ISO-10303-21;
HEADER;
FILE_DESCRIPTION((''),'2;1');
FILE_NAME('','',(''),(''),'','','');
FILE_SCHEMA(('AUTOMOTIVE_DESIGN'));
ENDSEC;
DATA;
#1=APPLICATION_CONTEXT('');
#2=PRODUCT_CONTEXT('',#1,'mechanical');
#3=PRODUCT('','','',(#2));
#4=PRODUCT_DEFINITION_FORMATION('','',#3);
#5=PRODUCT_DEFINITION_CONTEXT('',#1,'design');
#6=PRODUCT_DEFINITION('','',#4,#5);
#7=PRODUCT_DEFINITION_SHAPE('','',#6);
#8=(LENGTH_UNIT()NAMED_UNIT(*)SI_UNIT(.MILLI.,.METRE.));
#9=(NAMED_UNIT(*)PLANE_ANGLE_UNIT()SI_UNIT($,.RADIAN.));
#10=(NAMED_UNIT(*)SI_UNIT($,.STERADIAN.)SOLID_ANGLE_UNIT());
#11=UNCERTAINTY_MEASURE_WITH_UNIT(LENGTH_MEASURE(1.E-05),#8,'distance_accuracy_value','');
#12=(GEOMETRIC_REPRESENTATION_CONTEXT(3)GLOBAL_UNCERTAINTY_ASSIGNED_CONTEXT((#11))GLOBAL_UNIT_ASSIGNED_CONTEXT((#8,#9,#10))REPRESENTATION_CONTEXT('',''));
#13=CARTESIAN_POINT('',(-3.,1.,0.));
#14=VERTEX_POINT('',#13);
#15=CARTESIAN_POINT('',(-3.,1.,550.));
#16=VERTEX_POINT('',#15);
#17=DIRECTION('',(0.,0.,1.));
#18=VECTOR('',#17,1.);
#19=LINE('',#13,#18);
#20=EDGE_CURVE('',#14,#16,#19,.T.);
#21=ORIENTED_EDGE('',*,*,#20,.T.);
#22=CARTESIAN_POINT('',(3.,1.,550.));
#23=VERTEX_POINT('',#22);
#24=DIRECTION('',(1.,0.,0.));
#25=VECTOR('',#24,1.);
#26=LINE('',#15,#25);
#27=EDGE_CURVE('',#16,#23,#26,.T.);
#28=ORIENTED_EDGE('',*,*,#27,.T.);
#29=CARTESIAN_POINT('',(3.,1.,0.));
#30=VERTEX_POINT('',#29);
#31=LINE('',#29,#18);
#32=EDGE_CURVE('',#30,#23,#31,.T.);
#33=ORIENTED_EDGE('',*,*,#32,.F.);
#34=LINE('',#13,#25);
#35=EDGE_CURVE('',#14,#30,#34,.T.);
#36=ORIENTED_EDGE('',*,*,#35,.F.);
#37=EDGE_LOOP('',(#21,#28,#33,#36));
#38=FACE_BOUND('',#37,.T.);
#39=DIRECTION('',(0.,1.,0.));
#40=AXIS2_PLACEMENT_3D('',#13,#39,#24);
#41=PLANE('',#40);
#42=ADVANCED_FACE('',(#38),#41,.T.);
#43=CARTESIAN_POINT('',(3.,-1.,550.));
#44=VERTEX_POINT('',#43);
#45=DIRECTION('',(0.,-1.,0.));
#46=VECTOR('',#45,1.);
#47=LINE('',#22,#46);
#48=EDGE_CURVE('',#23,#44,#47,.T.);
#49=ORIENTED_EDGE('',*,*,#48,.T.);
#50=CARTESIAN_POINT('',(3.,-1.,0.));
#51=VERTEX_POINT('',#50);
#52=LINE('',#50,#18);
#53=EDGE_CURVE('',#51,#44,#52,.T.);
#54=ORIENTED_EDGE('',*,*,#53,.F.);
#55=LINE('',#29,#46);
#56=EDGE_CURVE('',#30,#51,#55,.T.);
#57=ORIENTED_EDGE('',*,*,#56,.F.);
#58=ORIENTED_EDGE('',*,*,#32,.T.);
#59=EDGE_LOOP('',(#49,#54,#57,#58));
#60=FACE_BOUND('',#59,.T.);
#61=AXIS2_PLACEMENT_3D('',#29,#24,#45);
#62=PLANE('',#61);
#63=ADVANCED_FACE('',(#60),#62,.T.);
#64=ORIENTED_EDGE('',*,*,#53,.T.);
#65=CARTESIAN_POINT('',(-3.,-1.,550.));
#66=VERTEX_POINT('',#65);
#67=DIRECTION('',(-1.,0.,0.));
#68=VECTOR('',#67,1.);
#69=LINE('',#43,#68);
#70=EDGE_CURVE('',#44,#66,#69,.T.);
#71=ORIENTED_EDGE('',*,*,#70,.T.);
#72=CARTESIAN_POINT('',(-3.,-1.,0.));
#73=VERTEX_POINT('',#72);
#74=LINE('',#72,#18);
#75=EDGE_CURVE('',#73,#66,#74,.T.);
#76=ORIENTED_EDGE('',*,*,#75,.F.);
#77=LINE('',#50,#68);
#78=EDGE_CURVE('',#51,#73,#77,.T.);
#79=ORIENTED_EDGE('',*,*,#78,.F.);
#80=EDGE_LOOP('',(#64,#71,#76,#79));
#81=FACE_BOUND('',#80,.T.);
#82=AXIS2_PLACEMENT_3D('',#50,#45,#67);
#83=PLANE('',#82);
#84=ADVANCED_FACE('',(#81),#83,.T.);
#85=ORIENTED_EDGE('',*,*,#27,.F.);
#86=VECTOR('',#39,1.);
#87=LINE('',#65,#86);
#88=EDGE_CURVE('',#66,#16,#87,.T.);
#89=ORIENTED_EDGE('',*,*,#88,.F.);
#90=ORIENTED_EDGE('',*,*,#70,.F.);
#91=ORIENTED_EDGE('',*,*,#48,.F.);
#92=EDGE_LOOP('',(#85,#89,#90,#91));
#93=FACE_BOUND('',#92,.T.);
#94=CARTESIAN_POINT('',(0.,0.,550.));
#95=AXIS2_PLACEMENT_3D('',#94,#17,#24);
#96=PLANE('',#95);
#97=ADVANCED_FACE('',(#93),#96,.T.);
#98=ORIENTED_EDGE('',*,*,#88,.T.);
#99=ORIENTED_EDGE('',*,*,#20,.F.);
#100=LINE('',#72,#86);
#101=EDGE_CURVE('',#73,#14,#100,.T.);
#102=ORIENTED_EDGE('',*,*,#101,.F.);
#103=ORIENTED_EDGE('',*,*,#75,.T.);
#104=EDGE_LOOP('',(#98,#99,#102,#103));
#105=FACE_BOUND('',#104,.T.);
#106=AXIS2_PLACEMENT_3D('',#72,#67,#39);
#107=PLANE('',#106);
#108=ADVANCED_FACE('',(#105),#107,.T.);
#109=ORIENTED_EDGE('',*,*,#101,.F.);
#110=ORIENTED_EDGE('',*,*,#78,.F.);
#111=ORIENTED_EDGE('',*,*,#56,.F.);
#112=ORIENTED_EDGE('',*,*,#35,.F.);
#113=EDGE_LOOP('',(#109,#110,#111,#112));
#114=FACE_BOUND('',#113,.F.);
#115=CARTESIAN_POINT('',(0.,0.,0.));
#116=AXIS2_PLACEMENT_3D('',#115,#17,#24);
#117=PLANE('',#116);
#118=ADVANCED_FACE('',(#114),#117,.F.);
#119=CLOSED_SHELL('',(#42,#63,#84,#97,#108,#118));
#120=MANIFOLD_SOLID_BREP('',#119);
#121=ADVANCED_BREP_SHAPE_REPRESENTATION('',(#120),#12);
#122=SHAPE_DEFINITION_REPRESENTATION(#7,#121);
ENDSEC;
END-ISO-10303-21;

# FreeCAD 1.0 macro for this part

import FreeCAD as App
import Part
import Sketcher
Q = App.Units.Quantity


def add_polygon(sketch, points):
    """Adds a closed chain of lines whose ends are joined by coincident constraints."""
    first, n = sketch.GeometryCount, len(points)
    for a, b in zip(points, points[1:] + points[:1]):
        sketch.addGeometry(Part.LineSegment(App.Vector(*a, 0), App.Vector(*b, 0)), False)
    for i in range(n):
        sketch.addConstraint(Sketcher.Constraint("Coincident", first + i, 2, first + (i + 1) % n, 1))

doc = App.newDocument("Part")
body = doc.addObject("PartDesign::Body", "Body")

sketch1 = doc.addObject("Sketcher::SketchObject", "Sketch")
body.addObject(sketch1)
sketch1.AttachmentSupport = (doc.XY_Plane, [""])
sketch1.MapMode = "FlatFace"
add_polygon(sketch1, [(3, 1), (-3, 1), (-3, -1), (3, -1)])
sketch1.addConstraint(Sketcher.Constraint("Horizontal", 0))
sketch1.addConstraint(Sketcher.Constraint("Vertical", 1))
sketch1.addConstraint(Sketcher.Constraint("Horizontal", 2))
sketch1.addConstraint(Sketcher.Constraint("Vertical", 3))
sketch1.addConstraint(Sketcher.Constraint("Symmetric", 0, 2, 2, 2, -1, 1))
sketch1.addConstraint(Sketcher.Constraint("DistanceX", 0, 2, 0, 1, Q("6 mm")))
sketch1.addConstraint(Sketcher.Constraint("DistanceY", 1, 2, 1, 1, Q("2 mm")))
pad1 = doc.addObject("PartDesign::Pad", "Pad")
body.addObject(pad1)
pad1.Profile = sketch1
pad1.Length = 550

doc.recompute()
